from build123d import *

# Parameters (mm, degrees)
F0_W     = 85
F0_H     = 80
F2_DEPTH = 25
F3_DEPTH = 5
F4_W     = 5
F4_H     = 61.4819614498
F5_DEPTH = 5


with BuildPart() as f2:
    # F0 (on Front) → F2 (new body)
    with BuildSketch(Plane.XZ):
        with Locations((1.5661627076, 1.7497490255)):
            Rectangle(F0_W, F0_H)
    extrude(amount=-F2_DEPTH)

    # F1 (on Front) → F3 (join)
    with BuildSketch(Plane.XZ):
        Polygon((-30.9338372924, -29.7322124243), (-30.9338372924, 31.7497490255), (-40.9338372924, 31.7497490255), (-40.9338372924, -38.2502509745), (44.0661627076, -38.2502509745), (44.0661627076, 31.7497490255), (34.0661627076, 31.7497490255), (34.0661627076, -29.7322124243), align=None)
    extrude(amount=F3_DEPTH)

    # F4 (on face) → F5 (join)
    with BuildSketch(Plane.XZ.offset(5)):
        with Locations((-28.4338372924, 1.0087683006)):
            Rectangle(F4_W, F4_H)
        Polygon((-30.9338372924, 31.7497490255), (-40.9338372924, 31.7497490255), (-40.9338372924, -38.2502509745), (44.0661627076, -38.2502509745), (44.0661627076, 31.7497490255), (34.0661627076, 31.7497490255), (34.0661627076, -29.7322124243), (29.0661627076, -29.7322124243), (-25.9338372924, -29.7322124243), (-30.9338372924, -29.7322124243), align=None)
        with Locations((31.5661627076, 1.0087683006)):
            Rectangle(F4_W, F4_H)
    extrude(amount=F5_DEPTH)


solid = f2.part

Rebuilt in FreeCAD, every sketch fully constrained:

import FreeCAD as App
import Part
import Sketcher
Q = App.Units.Quantity


def add_polygon(sketch, points):
    """Adds a closed chain of lines whose ends are joined by coincident constraints."""
    first, n = sketch.GeometryCount, len(points)
    for a, b in zip(points, points[1:] + points[:1]):
        sketch.addGeometry(Part.LineSegment(App.Vector(*a, 0), App.Vector(*b, 0)), False)
    for i in range(n):
        sketch.addConstraint(Sketcher.Constraint("Coincident", first + i, 2, first + (i + 1) % n, 1))

doc = App.newDocument("Part")
body = doc.addObject("PartDesign::Body", "Body")

sketch1 = body.newObject("Sketcher::SketchObject", "Sketch")
sketch1.AttachmentSupport = (doc.getObject("XZ_Plane"), [""])
sketch1.MapMode = "FlatFace"
add_polygon(sketch1, [(-41, 42), (-41, -38), (44, -38), (44, 42)])
sketch1.addConstraint([
    Sketcher.Constraint("Vertical", 0),
    Sketcher.Constraint("Horizontal", 1),
    Sketcher.Constraint("Vertical", 2),
    Sketcher.Constraint("Horizontal", 3),
    Sketcher.Constraint("DistanceX", 1, 1, 1, 2, Q("85 mm")),
    Sketcher.Constraint("DistanceY", 0, 2, 0, 1, Q("80 mm")),
    Sketcher.Constraint("DistanceY", 0, 2, -1, 1, Q("38.250251 mm")),
    Sketcher.Constraint("DistanceX", 0, 2, -1, 1, Q("40.933837 mm")),
])
pad1 = body.newObject("PartDesign::Pad", "Pad")
pad1.Profile = sketch1
pad1.Length = 25
pad1.Reversed = True

sketch2 = body.newObject("Sketcher::SketchObject", "Sketch001")
sketch2.AttachmentSupport = (doc.getObject("XZ_Plane"), [""])
sketch2.MapMode = "FlatFace"
add_polygon(sketch2, [(-31, -30), (-31, 32), (-41, 32), (-41, -38), (44, -38), (44, 32), (34, 32), (34, -30)])
sketch2.addConstraint([
    Sketcher.Constraint("Vertical", 0),
    Sketcher.Constraint("Horizontal", 1),
    Sketcher.Constraint("Vertical", 2),
    Sketcher.Constraint("Horizontal", 3),
    Sketcher.Constraint("Vertical", 4),
    Sketcher.Constraint("Horizontal", 5),
    Sketcher.Constraint("Vertical", 6),
    Sketcher.Constraint("Horizontal", 7),
    Sketcher.Constraint("Horizontal", 1, 2, 4, 2),
    Sketcher.Constraint("Equal", 1, 5),
    Sketcher.Constraint("DistanceX", 1, 2, 1, 1, Q("10 mm")),
    Sketcher.Constraint("DistanceX", 3, 1, 3, 2, Q("85 mm")),
    Sketcher.Constraint("DistanceY", 2, 2, 2, 1, Q("70 mm")),
    Sketcher.Constraint("DistanceY", 0, 1, 0, 2, Q("61.481961 mm")),
    Sketcher.Constraint("DistanceY", -1, 1, 0, 2, Q("31.749749 mm")),
    Sketcher.Constraint("DistanceX", 0, 2, -1, 1, Q("30.933837 mm")),
])
pad2 = body.newObject("PartDesign::Pad", "Pad001")
pad2.Profile = sketch2
pad2.Length = 5

sketch3 = body.newObject("Sketcher::SketchObject", "Sketch002")
sketch3.AttachmentSupport = (doc.getObject("XZ_Plane"), [""])
sketch3.MapMode = "FlatFace"
sketch3.AttachmentOffset = App.Placement(App.Vector(0, 0, 5), App.Rotation())
add_polygon(sketch3, [(-26, -30), (-26, 32), (-41, 32), (-41, -38), (44, -38), (44, 32), (29, 32), (29, -30)])
sketch3.addConstraint([
    Sketcher.Constraint("Vertical", 0),
    Sketcher.Constraint("Horizontal", 1),
    Sketcher.Constraint("Vertical", 2),
    Sketcher.Constraint("Horizontal", 3),
    Sketcher.Constraint("Vertical", 4),
    Sketcher.Constraint("Horizontal", 5),
    Sketcher.Constraint("Vertical", 6),
    Sketcher.Constraint("Horizontal", 7),
    Sketcher.Constraint("Horizontal", 1, 2, 4, 2),
    Sketcher.Constraint("Equal", 1, 5),
    Sketcher.Constraint("DistanceX", 1, 2, 1, 1, Q("15 mm")),
    Sketcher.Constraint("DistanceX", 3, 1, 3, 2, Q("85 mm")),
    Sketcher.Constraint("DistanceY", 2, 2, 2, 1, Q("70 mm")),
    Sketcher.Constraint("DistanceY", 0, 1, 0, 2, Q("61.481961 mm")),
    Sketcher.Constraint("DistanceY", -1, 1, 0, 2, Q("31.749749 mm")),
    Sketcher.Constraint("DistanceX", 0, 2, -1, 1, Q("25.933837 mm")),
])
pad3 = body.newObject("PartDesign::Pad", "Pad002")
pad3.Profile = sketch3
pad3.Length = 5

doc.recompute()
